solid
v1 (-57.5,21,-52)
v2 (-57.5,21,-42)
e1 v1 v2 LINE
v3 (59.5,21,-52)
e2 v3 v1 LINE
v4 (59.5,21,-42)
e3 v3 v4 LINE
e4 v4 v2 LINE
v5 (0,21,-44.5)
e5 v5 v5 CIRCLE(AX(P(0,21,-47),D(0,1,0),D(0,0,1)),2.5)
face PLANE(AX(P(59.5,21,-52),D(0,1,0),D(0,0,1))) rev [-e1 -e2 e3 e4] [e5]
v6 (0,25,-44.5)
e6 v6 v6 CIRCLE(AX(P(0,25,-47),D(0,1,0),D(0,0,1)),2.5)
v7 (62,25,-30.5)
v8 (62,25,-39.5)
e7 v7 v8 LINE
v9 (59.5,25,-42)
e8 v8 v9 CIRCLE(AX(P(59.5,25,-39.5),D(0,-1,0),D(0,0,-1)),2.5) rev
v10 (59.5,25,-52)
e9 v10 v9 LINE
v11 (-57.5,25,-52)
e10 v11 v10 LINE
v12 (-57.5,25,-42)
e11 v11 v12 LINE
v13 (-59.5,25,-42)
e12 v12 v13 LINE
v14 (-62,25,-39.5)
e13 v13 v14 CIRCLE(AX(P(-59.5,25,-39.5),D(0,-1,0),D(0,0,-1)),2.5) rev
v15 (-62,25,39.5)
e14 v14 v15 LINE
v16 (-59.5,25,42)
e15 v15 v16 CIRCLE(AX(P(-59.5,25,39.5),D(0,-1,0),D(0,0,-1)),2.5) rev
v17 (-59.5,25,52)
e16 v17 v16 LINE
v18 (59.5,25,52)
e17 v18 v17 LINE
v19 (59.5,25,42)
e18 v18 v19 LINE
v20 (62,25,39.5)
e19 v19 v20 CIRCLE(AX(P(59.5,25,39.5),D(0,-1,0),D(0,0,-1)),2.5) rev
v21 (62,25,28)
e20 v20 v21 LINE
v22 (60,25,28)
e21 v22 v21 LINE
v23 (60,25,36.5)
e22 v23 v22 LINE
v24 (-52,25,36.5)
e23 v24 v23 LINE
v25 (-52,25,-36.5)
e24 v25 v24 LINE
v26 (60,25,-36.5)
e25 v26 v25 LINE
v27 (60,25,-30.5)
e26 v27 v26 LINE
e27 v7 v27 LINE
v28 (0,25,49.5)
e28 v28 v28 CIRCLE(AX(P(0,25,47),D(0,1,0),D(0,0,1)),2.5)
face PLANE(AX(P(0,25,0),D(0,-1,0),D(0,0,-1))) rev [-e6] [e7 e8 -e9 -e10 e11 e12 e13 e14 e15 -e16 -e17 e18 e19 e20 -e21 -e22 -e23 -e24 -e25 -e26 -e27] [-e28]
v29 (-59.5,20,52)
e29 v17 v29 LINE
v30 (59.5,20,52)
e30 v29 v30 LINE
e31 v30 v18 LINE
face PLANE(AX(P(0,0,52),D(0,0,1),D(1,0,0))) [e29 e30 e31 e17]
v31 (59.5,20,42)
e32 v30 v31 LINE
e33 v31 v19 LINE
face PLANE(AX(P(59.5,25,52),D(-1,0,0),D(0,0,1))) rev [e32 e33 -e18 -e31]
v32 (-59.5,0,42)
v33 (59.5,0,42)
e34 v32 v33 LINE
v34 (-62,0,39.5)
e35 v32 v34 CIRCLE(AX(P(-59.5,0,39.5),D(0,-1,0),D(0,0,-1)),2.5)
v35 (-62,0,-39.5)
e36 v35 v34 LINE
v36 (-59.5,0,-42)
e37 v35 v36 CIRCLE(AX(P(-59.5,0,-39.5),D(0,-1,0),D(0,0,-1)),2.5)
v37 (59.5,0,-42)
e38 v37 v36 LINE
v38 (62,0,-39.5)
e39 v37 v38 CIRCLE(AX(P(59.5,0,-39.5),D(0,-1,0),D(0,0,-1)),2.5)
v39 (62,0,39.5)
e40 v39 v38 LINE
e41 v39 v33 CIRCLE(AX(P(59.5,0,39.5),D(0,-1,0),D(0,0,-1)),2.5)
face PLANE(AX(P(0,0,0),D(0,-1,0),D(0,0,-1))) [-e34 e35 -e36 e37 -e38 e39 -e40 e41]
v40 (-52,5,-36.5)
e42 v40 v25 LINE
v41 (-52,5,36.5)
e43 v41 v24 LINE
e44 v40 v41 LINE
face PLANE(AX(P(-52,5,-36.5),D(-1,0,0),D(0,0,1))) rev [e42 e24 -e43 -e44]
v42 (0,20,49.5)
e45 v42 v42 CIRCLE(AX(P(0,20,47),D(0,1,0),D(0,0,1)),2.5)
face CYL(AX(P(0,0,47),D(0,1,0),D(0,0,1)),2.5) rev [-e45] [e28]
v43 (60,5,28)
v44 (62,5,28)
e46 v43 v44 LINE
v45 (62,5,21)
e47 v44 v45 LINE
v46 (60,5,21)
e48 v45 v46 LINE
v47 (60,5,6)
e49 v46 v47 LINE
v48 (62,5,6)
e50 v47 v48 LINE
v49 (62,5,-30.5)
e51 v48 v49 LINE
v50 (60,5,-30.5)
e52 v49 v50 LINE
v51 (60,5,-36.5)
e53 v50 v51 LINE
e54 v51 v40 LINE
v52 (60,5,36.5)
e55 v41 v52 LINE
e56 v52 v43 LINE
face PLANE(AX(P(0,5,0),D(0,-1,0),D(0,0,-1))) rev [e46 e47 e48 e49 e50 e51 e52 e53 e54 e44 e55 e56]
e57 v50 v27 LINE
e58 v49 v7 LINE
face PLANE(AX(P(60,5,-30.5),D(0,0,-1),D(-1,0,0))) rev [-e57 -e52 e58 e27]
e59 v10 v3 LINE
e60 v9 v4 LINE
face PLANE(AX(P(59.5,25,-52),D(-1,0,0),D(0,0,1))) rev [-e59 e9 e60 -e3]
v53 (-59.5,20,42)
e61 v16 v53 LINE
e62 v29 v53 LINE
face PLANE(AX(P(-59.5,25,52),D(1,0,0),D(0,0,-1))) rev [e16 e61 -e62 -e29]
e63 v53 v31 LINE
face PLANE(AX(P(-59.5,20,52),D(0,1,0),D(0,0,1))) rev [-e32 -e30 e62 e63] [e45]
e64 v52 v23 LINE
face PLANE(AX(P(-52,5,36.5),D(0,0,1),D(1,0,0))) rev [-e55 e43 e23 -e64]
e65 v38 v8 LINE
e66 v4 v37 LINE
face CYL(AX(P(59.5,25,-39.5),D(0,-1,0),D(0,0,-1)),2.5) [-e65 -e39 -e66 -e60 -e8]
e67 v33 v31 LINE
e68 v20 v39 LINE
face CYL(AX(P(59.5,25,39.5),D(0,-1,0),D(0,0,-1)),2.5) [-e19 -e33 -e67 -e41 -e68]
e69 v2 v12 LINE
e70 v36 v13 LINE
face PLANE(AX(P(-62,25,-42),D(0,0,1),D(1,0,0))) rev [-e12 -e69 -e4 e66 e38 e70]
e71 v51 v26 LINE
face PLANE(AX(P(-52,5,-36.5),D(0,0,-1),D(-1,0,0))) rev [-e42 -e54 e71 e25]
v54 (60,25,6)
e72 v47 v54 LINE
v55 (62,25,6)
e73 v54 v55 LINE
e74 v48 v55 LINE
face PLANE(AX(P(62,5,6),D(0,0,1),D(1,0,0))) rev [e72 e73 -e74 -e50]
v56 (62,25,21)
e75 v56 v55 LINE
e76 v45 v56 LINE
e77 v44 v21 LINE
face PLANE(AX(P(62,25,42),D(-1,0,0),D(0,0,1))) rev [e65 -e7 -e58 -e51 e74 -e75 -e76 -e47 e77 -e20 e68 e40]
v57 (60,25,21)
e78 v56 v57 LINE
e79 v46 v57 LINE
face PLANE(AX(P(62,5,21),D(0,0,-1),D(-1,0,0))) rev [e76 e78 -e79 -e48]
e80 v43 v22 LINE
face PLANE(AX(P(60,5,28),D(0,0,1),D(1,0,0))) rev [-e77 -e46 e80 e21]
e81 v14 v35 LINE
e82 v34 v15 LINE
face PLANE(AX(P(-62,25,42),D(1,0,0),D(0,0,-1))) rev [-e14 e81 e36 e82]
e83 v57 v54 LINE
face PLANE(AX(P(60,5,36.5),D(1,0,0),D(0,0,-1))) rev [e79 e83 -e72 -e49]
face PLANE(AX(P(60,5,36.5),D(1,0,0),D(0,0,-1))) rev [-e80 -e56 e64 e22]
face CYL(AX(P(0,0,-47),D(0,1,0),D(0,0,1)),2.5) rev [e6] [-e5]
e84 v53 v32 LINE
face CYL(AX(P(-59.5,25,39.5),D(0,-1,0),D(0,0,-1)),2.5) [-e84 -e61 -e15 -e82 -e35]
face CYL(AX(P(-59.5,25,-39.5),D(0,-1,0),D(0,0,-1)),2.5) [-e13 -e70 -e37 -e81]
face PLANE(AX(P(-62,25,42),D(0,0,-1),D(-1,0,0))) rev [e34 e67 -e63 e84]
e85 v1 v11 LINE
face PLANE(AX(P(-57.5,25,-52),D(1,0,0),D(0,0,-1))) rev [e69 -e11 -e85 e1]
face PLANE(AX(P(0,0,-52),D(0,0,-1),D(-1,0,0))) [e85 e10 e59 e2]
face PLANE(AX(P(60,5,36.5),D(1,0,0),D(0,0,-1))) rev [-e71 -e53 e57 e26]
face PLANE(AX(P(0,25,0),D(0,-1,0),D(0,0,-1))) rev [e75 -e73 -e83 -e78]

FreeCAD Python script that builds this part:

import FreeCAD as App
import Part
import Sketcher
Q = App.Units.Quantity


def edges_at(feature, points):
    """Names of the edges that pass closest to the given points."""
    edges = feature.Shape.Edges
    near = lambda p: min(range(len(edges)), key=lambda i: edges[i].distToShape(Part.Vertex(*p))[0])
    return sorted({f"Edge{near(p) + 1}" for p in points})

doc = App.newDocument("Part")
body = doc.addObject("PartDesign::Body", "Body")

sketch1 = body.newObject("Sketcher::SketchObject", "Sketch")
sketch1.AttachmentSupport = (doc.getObject("XZ_Plane"), [""])
sketch1.MapMode = "FlatFace"
sketch1.addGeometry([
    Part.LineSegment(App.Vector(-62, -42, 0), App.Vector(-62, 42, 0)),
    Part.LineSegment(App.Vector(-62, 42, 0), App.Vector(62, 42, 0)),
    Part.LineSegment(App.Vector(62, 42, 0), App.Vector(62, -42, 0)),
    Part.LineSegment(App.Vector(62, -42, 0), App.Vector(-62, -42, 0)),
], False)
sketch1.addConstraint([
    Sketcher.Constraint("Coincident", 0, 2, 1, 1),
    Sketcher.Constraint("Coincident", 1, 2, 2, 1),
    Sketcher.Constraint("Coincident", 2, 2, 3, 1),
    Sketcher.Constraint("Coincident", 3, 2, 0, 1),
    Sketcher.Constraint("Vertical", 0),
    Sketcher.Constraint("Horizontal", 1),
    Sketcher.Constraint("Vertical", 2),
    Sketcher.Constraint("Horizontal", 3),
    Sketcher.Constraint("Symmetric", 0, 2, 2, 2, -1, 1),
    Sketcher.Constraint("DistanceX", 1, 1, 1, 2, Q("124 mm")),
    Sketcher.Constraint("DistanceY", 0, 1, 0, 2, Q("84 mm")),
])
pad1 = body.newObject("PartDesign::Pad", "Pad")
pad1.Profile = sketch1
pad1.Length = 25
pad1.Reversed = True

sketch2 = body.newObject("Sketcher::SketchObject", "Sketch001")
sketch2.AttachmentSupport = (doc.getObject("XZ_Plane"), [""])
sketch2.MapMode = "FlatFace"
sketch2.AttachmentOffset = App.Placement(App.Vector(0, 0, -25), App.Rotation())
sketch2.addGeometry([
    Part.LineSegment(App.Vector(-52, -36.5, 0), App.Vector(-52, 36.5, 0)),
    Part.LineSegment(App.Vector(-52, 36.5, 0), App.Vector(60, 36.5, 0)),
    Part.LineSegment(App.Vector(60, 36.5, 0), App.Vector(60, -36.5, 0)),
    Part.LineSegment(App.Vector(60, -36.5, 0), App.Vector(-52, -36.5, 0)),
], False)
sketch2.addConstraint([
    Sketcher.Constraint("Coincident", 0, 2, 1, 1),
    Sketcher.Constraint("Coincident", 1, 2, 2, 1),
    Sketcher.Constraint("Coincident", 2, 2, 3, 1),
    Sketcher.Constraint("Coincident", 3, 2, 0, 1),
    Sketcher.Constraint("Vertical", 0),
    Sketcher.Constraint("Horizontal", 1),
    Sketcher.Constraint("Vertical", 2),
    Sketcher.Constraint("Horizontal", 3),
    Sketcher.Constraint("DistanceX", 1, 1, 1, 2, Q("112 mm")),
    Sketcher.Constraint("DistanceY", 0, 1, 0, 2, Q("73 mm")),
    Sketcher.Constraint("DistanceX", 0, 2, -1, 1, Q("52 mm")),
    Sketcher.Constraint("DistanceY", -1, 1, 0, 2, Q("36.5 mm")),
])
pocket1 = body.newObject("PartDesign::Pocket", "Pocket")
pocket1.Profile = sketch2
pocket1.Length = 20
pocket1.Reversed = True

sketch3 = body.newObject("Sketcher::SketchObject", "Sketch002")
sketch3.AttachmentSupport = (doc.getObject("XZ_Plane"), [""])
sketch3.MapMode = "FlatFace"
sketch3.AttachmentOffset = App.Placement(App.Vector(0, 0, -25), App.Rotation())
sketch3.addGeometry([
    Part.LineSegment(App.Vector(60, 21, 0), App.Vector(60, 28, 0)),
    Part.LineSegment(App.Vector(60, 28, 0), App.Vector(62, 28, 0)),
    Part.LineSegment(App.Vector(62, 28, 0), App.Vector(62, 21, 0)),
    Part.LineSegment(App.Vector(62, 21, 0), App.Vector(60, 21, 0)),
    Part.LineSegment(App.Vector(60, -30.5, 0), App.Vector(60, 6, 0)),
    Part.LineSegment(App.Vector(60, 6, 0), App.Vector(62, 6, 0)),
    Part.LineSegment(App.Vector(62, 6, 0), App.Vector(62, -30.5, 0)),
    Part.LineSegment(App.Vector(62, -30.5, 0), App.Vector(60, -30.5, 0)),
], False)
sketch3.addConstraint([
    Sketcher.Constraint("Coincident", 0, 2, 1, 1),
    Sketcher.Constraint("Coincident", 1, 2, 2, 1),
    Sketcher.Constraint("Coincident", 2, 2, 3, 1),
    Sketcher.Constraint("Coincident", 3, 2, 0, 1),
    Sketcher.Constraint("Coincident", 4, 2, 5, 1),
    Sketcher.Constraint("Coincident", 5, 2, 6, 1),
    Sketcher.Constraint("Coincident", 6, 2, 7, 1),
    Sketcher.Constraint("Coincident", 7, 2, 4, 1),
    Sketcher.Constraint("Vertical", 0),
    Sketcher.Constraint("Horizontal", 1),
    Sketcher.Constraint("Vertical", 2),
    Sketcher.Constraint("Horizontal", 3),
    Sketcher.Constraint("Vertical", 4),
    Sketcher.Constraint("Horizontal", 5),
    Sketcher.Constraint("Vertical", 6),
    Sketcher.Constraint("Horizontal", 7),
    Sketcher.Constraint("Vertical", 3, 2, 4, 2),
    Sketcher.Constraint("Vertical", 2, 2, 5, 2),
    Sketcher.Constraint("DistanceX", 1, 1, 1, 2, Q("2 mm")),
    Sketcher.Constraint("DistanceY", 0, 1, 0, 2, Q("7 mm")),
    Sketcher.Constraint("DistanceY", 4, 1, 4, 2, Q("36.5 mm")),
    Sketcher.Constraint("DistanceX", -1, 1, 0, 2, Q("60 mm")),
    Sketcher.Constraint("DistanceY", -1, 1, 0, 2, Q("28 mm")),
    Sketcher.Constraint("DistanceY", -1, 1, 4, 2, Q("6 mm")),
])
pocket2 = body.newObject("PartDesign::Pocket", "Pocket001")
pocket2.Profile = sketch3
pocket2.Length = 20
pocket2.Reversed = True
doc.recompute()

fillet = body.newObject("PartDesign::Fillet", "Fillet")
fillet.Base = (pocket2, edges_at(pocket2, [
    (62, 12.5, 42),
    (-62, 12.5, 42),
    (-62, 12.5, -42),
    (62, 12.5, -42),
]))
fillet.Radius = 2.5

sketch4 = body.newObject("Sketcher::SketchObject", "Sketch003")
sketch4.AttachmentSupport = (doc.getObject("XY_Plane"), [""])
sketch4.MapMode = "FlatFace"
sketch4.AttachmentOffset = App.Placement(App.Vector(0, 0, 42), App.Rotation())
sketch4.addGeometry([
    Part.LineSegment(App.Vector(-59.5, 25, 0), App.Vector(-59.5, 20, 0)),
    Part.LineSegment(App.Vector(-59.5, 20, 0), App.Vector(59.5, 20, 0)),
    Part.LineSegment(App.Vector(59.5, 20, 0), App.Vector(59.5, 25, 0)),
    Part.LineSegment(App.Vector(59.5, 25, 0), App.Vector(-59.5, 25, 0)),
], False)
sketch4.addConstraint([
    Sketcher.Constraint("Coincident", 0, 2, 1, 1),
    Sketcher.Constraint("Coincident", 1, 2, 2, 1),
    Sketcher.Constraint("Coincident", 2, 2, 3, 1),
    Sketcher.Constraint("Coincident", 3, 2, 0, 1),
    Sketcher.Constraint("Vertical", 0),
    Sketcher.Constraint("Horizontal", 1),
    Sketcher.Constraint("Vertical", 2),
    Sketcher.Constraint("Horizontal", 3),
    Sketcher.Constraint("DistanceX", 1, 1, 1, 2, Q("119 mm")),
    Sketcher.Constraint("DistanceY", 0, 2, 0, 1, Q("5 mm")),
    Sketcher.Constraint("DistanceY", -1, 1, 0, 2, Q("20 mm")),
    Sketcher.Constraint("DistanceX", 0, 2, -1, 1, Q("59.5 mm")),
])
pad2 = body.newObject("PartDesign::Pad", "Pad001")
pad2.Profile = sketch4
pad2.Length = 10

sketch5 = body.newObject("Sketcher::SketchObject", "Sketch004")
sketch5.AttachmentSupport = (doc.getObject("XY_Plane"), [""])
sketch5.MapMode = "FlatFace"
sketch5.AttachmentOffset = App.Placement(App.Vector(0, 0, -42), App.Rotation())
sketch5.addGeometry([
    Part.LineSegment(App.Vector(59.5, 25, 0), App.Vector(59.5, 21, 0)),
    Part.LineSegment(App.Vector(59.5, 21, 0), App.Vector(-57.5, 21, 0)),
    Part.LineSegment(App.Vector(-57.5, 21, 0), App.Vector(-57.5, 25, 0)),
    Part.LineSegment(App.Vector(-57.5, 25, 0), App.Vector(59.5, 25, 0)),
], False)
sketch5.addConstraint([
    Sketcher.Constraint("Coincident", 0, 2, 1, 1),
    Sketcher.Constraint("Coincident", 1, 2, 2, 1),
    Sketcher.Constraint("Coincident", 2, 2, 3, 1),
    Sketcher.Constraint("Coincident", 3, 2, 0, 1),
    Sketcher.Constraint("Vertical", 0),
    Sketcher.Constraint("Horizontal", 1),
    Sketcher.Constraint("Vertical", 2),
    Sketcher.Constraint("Horizontal", 3),
    Sketcher.Constraint("DistanceX", 1, 2, 1, 1, Q("117 mm")),
    Sketcher.Constraint("DistanceY", 0, 2, 0, 1, Q("4 mm")),
    Sketcher.Constraint("DistanceY", -1, 1, 0, 2, Q("21 mm")),
    Sketcher.Constraint("DistanceX", -1, 1, 0, 2, Q("59.5 mm")),
])
pad3 = body.newObject("PartDesign::Pad", "Pad002")
pad3.Profile = sketch5
pad3.Length = 10
pad3.Reversed = True

sketch6 = body.newObject("Sketcher::SketchObject", "Sketch005")
sketch6.AttachmentSupport = (doc.getObject("XZ_Plane"), [""])
sketch6.MapMode = "FlatFace"
sketch6.AttachmentOffset = App.Placement(App.Vector(0, 0, -25), App.Rotation())
sketch6.addGeometry([
    Part.Circle(App.Vector(0, -47, 0), App.Vector(0, 0, 1), 2.5),
    Part.Circle(App.Vector(0, 47, 0), App.Vector(0, 0, 1), 2.5),
], False)
sketch6.addConstraint([
    Sketcher.Constraint("Equal", 0, 1),
    Sketcher.Constraint("Symmetric", 0, 3, 1, 3, -1, 1),
    Sketcher.Constraint("PointOnObject", 0, 3, -2),
    Sketcher.Constraint("Diameter", 0, Q("5 mm")),
    Sketcher.Constraint("DistanceY", 0, 3, -1, 1, Q("47 mm")),
])
pocket3 = body.newObject("PartDesign::Pocket", "Pocket002")
pocket3.Profile = sketch6
pocket3.Type = "ThroughAll"
pocket3.Reversed = True

doc.recompute()
